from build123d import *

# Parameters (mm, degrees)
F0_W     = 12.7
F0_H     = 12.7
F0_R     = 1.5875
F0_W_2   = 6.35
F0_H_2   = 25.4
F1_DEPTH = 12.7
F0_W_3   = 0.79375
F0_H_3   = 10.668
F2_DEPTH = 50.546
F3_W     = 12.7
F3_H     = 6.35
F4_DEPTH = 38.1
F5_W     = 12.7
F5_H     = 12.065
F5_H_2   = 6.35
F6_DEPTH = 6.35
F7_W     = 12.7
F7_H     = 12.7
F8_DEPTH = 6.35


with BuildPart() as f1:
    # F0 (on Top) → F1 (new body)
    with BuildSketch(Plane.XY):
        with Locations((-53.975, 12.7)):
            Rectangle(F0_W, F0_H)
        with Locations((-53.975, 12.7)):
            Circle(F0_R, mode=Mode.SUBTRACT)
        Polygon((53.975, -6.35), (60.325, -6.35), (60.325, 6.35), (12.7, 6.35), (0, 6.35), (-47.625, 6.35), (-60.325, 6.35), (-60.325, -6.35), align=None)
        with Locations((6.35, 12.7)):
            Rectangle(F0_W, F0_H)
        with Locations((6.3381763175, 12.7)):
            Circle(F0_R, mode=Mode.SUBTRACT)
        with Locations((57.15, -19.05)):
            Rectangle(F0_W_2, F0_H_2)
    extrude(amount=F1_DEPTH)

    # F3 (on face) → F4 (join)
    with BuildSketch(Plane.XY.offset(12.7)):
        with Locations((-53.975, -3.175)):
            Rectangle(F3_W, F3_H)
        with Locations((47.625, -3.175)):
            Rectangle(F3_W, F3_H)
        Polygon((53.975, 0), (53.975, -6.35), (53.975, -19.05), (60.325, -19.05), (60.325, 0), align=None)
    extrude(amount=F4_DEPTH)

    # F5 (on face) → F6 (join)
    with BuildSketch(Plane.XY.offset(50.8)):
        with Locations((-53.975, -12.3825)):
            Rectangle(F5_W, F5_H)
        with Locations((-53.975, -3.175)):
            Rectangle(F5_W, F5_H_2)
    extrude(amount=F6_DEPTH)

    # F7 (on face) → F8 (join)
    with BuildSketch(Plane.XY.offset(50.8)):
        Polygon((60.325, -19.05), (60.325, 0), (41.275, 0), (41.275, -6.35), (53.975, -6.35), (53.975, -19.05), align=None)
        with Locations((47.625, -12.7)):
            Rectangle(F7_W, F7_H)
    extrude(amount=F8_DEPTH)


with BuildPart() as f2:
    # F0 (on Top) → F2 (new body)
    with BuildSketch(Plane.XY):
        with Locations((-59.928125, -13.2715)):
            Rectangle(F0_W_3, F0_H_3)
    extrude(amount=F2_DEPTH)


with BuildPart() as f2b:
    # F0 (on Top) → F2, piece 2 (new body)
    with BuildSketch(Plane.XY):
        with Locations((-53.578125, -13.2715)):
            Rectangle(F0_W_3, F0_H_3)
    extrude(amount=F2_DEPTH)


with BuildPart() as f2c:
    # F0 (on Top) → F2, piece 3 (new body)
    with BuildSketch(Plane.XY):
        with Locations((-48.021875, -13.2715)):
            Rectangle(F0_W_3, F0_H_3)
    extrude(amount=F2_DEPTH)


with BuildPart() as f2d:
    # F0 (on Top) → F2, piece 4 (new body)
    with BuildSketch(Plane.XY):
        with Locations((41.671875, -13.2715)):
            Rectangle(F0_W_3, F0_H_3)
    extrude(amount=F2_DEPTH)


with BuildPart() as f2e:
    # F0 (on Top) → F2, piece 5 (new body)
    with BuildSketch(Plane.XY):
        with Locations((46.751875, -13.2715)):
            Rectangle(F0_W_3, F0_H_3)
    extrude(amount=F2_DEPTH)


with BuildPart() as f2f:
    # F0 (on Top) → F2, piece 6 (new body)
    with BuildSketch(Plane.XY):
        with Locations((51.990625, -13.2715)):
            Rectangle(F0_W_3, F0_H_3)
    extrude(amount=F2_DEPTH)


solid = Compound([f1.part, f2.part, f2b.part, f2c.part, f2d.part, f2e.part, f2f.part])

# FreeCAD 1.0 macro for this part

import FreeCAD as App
import Part
import Sketcher
from FreeCAD import Vector
Q = App.Units.Quantity


def add_polygon(sketch, points):
    """Adds a closed chain of lines whose ends are joined by coincident constraints."""
    first, n = sketch.GeometryCount, len(points)
    for a, b in zip(points, points[1:] + points[:1]):
        sketch.addGeometry(Part.LineSegment(App.Vector(*a, 0), App.Vector(*b, 0)), False)
    for i in range(n):
        sketch.addConstraint(Sketcher.Constraint("Coincident", first + i, 2, first + (i + 1) % n, 1))

doc = App.newDocument("Part")
body = doc.addObject("PartDesign::Body", "Body")

# Sketch on XY plane
sketch1 = doc.addObject("Sketcher::SketchObject", "Sketch")
body.addObject(sketch1)
sketch1.AttachmentSupport = (doc.XY_Plane, [""])
sketch1.MapMode = "FlatFace"
add_polygon(sketch1, [(-60.3, 19.1), (-60.3, -6.3), (54, -6.3), (54, -31.8), (60.3, -31.8), (60.3, 6.3), (12.7, 6.3), (12.7, 19.1), (0, 19.1), (0, 6.3), (-47.6, 6.3), (-47.6, 19.1)])  # lines 0-11
sketch1.addGeometry(Part.Circle(Vector(-54, 12.7, 0), Vector(0, 0, 1), 1.6), False)  # 12
sketch1.addGeometry(Part.Circle(Vector(6.3, 12.7, 0), Vector(0, 0, 1), 1.6), False)  # 13
sketch1.addConstraint(Sketcher.Constraint("Vertical", 0))
sketch1.addConstraint(Sketcher.Constraint("Horizontal", 1))
sketch1.addConstraint(Sketcher.Constraint("Vertical", 2))
sketch1.addConstraint(Sketcher.Constraint("Horizontal", 3))
sketch1.addConstraint(Sketcher.Constraint("Vertical", 4))
sketch1.addConstraint(Sketcher.Constraint("Horizontal", 5))
sketch1.addConstraint(Sketcher.Constraint("Vertical", 6))
sketch1.addConstraint(Sketcher.Constraint("Horizontal", 7))
sketch1.addConstraint(Sketcher.Constraint("Vertical", 8))
sketch1.addConstraint(Sketcher.Constraint("Horizontal", 9))
sketch1.addConstraint(Sketcher.Constraint("Vertical", 10))
sketch1.addConstraint(Sketcher.Constraint("Horizontal", 11))
sketch1.addConstraint(Sketcher.Constraint("Equal", 12, 13))
sketch1.addConstraint(Sketcher.Constraint("Symmetric", 0, 2, 4, 2, -1, 1))
sketch1.addConstraint(Sketcher.Constraint("PointOnObject", 7, 2, -2))
sketch1.addConstraint(Sketcher.Constraint("Horizontal", 12, 3, 13, 3))
sketch1.addConstraint(Sketcher.Constraint("Horizontal", 5, 2, 8, 2))
sketch1.addConstraint(Sketcher.Constraint("Horizontal", 7, 2, 10, 2))
sketch1.addConstraint(Sketcher.Constraint("Equal", 5, 9))
sketch1.addConstraint(Sketcher.Constraint("Equal", 0, 2))
sketch1.addConstraint(Sketcher.Constraint("Equal", 11, 6))
sketch1.addConstraint(Sketcher.Constraint("DistanceY", 0, 2, 0, 1, Q("1 in")))
sketch1.addConstraint(Sketcher.Constraint("Diameter", 12, Q("0.125 in")))
sketch1.addConstraint(Sketcher.Constraint("DistanceX", 1, 1, 1, 2, Q("4.5 in")))
sketch1.addConstraint(Sketcher.Constraint("DistanceX", 7, 2, 7, 1, Q("0.5 in")))
sketch1.addConstraint(Sketcher.Constraint("DistanceX", 3, 1, 3, 2, Q("0.25 in")))
sketch1.addConstraint(Sketcher.Constraint("DistanceY", -1, 1, 12, 3, Q("0.5 in")))
sketch1.addConstraint(Sketcher.Constraint("DistanceX", 12, 3, 3, 2, Q("4.5 in")))
sketch1.addConstraint(Sketcher.Constraint("DistanceX", -1, 1, 13, 3, Q("6.338176 mm")))
pad1 = doc.addObject("PartDesign::Pad", "Pad")
body.addObject(pad1)
pad1.Profile = sketch1
pad1.Length = Q("0.5 in")

# Sketch on XY plane
sketch2 = doc.addObject("Sketcher::SketchObject", "Sketch001")
body.addObject(sketch2)
sketch2.AttachmentSupport = (doc.XY_Plane, [""])
sketch2.MapMode = "FlatFace"
sketch2.AttachmentOffset = App.Placement(Vector(0, 0, 0.5 * 25.4), App.Rotation())
add_polygon(sketch2, [(-60, 0), (-60, -6), (-48, -6), (-48, 0)])  # lines 0-3
add_polygon(sketch2, [(41, 0), (41, -6), (54, -6), (54, -19), (60, -19), (60, 0)])  # lines 4-9
sketch2.addConstraint(Sketcher.Constraint("Vertical", 0))
sketch2.addConstraint(Sketcher.Constraint("Horizontal", 1))
sketch2.addConstraint(Sketcher.Constraint("Vertical", 2))
sketch2.addConstraint(Sketcher.Constraint("Horizontal", 3))
sketch2.addConstraint(Sketcher.Constraint("Vertical", 4))
sketch2.addConstraint(Sketcher.Constraint("Horizontal", 5))
sketch2.addConstraint(Sketcher.Constraint("Vertical", 6))
sketch2.addConstraint(Sketcher.Constraint("Horizontal", 7))
sketch2.addConstraint(Sketcher.Constraint("Vertical", 8))
sketch2.addConstraint(Sketcher.Constraint("Horizontal", 9))
sketch2.addConstraint(Sketcher.Constraint("Symmetric", 3, 2, 8, 2, -1, 1))
sketch2.addConstraint(Sketcher.Constraint("PointOnObject", 2, 2, -1))
sketch2.addConstraint(Sketcher.Constraint("Horizontal", 1, 2, 4, 2))
sketch2.addConstraint(Sketcher.Constraint("Equal", 3, 5))
sketch2.addConstraint(Sketcher.Constraint("Equal", 7, 0))
sketch2.addConstraint(Sketcher.Constraint("Equal", 5, 6))
sketch2.addConstraint(Sketcher.Constraint("DistanceX", 1, 1, 1, 2, Q("0.5 in")))
sketch2.addConstraint(Sketcher.Constraint("DistanceX", 0, 2, 4, 2, Q("4 in")))
sketch2.addConstraint(Sketcher.Constraint("DistanceX", 7, 1, 7, 2, Q("0.25 in")))
pad2 = doc.addObject("PartDesign::Pad", "Pad001")
body.addObject(pad2)
pad2.Profile = sketch2
pad2.Length = Q("1.5 in")

# Sketch on XY plane
sketch3 = doc.addObject("Sketcher::SketchObject", "Sketch002")
body.addObject(sketch3)
sketch3.AttachmentSupport = (doc.XY_Plane, [""])
sketch3.MapMode = "FlatFace"
sketch3.AttachmentOffset = App.Placement(Vector(0, 0, 2 * 25.4), App.Rotation())
add_polygon(sketch3, [(-60, -18), (-48, -18), (-48, 0), (-60, 0)])  # lines 0-3
sketch3.addConstraint(Sketcher.Constraint("Horizontal", 0))
sketch3.addConstraint(Sketcher.Constraint("Vertical", 1))
sketch3.addConstraint(Sketcher.Constraint("Horizontal", 2))
sketch3.addConstraint(Sketcher.Constraint("Vertical", 3))
sketch3.addConstraint(Sketcher.Constraint("PointOnObject", 1, 2, -1))
sketch3.addConstraint(Sketcher.Constraint("DistanceX", 0, 1, 0, 2, Q("0.5 in")))
sketch3.addConstraint(Sketcher.Constraint("DistanceY", 1, 1, 1, 2, Q("0.725 in")))
sketch3.addConstraint(Sketcher.Constraint("DistanceX", 0, 2, -1, 1, Q("1.875 in")))
pad3 = doc.addObject("PartDesign::Pad", "Pad002")
body.addObject(pad3)
pad3.Profile = sketch3
pad3.Length = Q("0.25 in")

# Sketch on XY plane
sketch4 = doc.addObject("Sketcher::SketchObject", "Sketch003")
body.addObject(sketch4)
sketch4.AttachmentSupport = (doc.XY_Plane, [""])
sketch4.MapMode = "FlatFace"
sketch4.AttachmentOffset = App.Placement(Vector(0, 0, 2 * 25.4), App.Rotation())
add_polygon(sketch4, [(60, -19), (60, 0), (41, 0), (41, -19)])  # lines 0-3
sketch4.addConstraint(Sketcher.Constraint("Vertical", 0))
sketch4.addConstraint(Sketcher.Constraint("Horizontal", 1))
sketch4.addConstraint(Sketcher.Constraint("Vertical", 2))
sketch4.addConstraint(Sketcher.Constraint("Horizontal", 3))
sketch4.addConstraint(Sketcher.Constraint("PointOnObject", 0, 2, -1))
sketch4.addConstraint(Sketcher.Constraint("Equal", 3, 0))
sketch4.addConstraint(Sketcher.Constraint("DistanceX", 1, 2, 1, 1, Q("0.75 in")))
sketch4.addConstraint(Sketcher.Constraint("DistanceX", -1, 1, 0, 2, Q("2.375 in")))
pad4 = doc.addObject("PartDesign::Pad", "Pad003")
body.addObject(pad4)
pad4.Profile = sketch4
pad4.Length = Q("0.25 in")
body2 = doc.addObject("PartDesign::Body", "Body001")

# Sketch on XY plane
sketch5 = doc.addObject("Sketcher::SketchObject", "Sketch004")
body2.addObject(sketch5)
sketch5.AttachmentSupport = (doc.getObject("XY_Plane001"), [""])
sketch5.MapMode = "FlatFace"
add_polygon(sketch5, [(-60.3, -7.9), (-60.3, -18.6), (-59.5, -18.6), (-59.5, -7.9)])  # lines 0-3
sketch5.addConstraint(Sketcher.Constraint("Vertical", 0))
sketch5.addConstraint(Sketcher.Constraint("Horizontal", 1))
sketch5.addConstraint(Sketcher.Constraint("Vertical", 2))
sketch5.addConstraint(Sketcher.Constraint("Horizontal", 3))
sketch5.addConstraint(Sketcher.Constraint("DistanceY", 0, 2, 0, 1, Q("0.42 in")))
sketch5.addConstraint(Sketcher.Constraint("DistanceX", 1, 1, 1, 2, Q("0.03125 in")))
sketch5.addConstraint(Sketcher.Constraint("DistanceX", 0, 2, -1, 1, Q("2.375 in")))
sketch5.addConstraint(Sketcher.Constraint("DistanceY", 2, 2, -1, 1, Q("0.3125 in")))
pad5 = doc.addObject("PartDesign::Pad", "Pad004")
body2.addObject(pad5)
pad5.Profile = sketch5
pad5.Length = Q("1.99 in")
body3 = doc.addObject("PartDesign::Body", "Body002")

# Sketch on XY plane
sketch6 = doc.addObject("Sketcher::SketchObject", "Sketch005")
body3.addObject(sketch6)
sketch6.AttachmentSupport = (doc.getObject("XY_Plane002"), [""])
sketch6.MapMode = "FlatFace"
add_polygon(sketch6, [(-54, -7.9), (-54, -18.6), (-53.2, -18.6), (-53.2, -7.9)])  # lines 0-3
sketch6.addConstraint(Sketcher.Constraint("Vertical", 0))
sketch6.addConstraint(Sketcher.Constraint("Horizontal", 1))
sketch6.addConstraint(Sketcher.Constraint("Vertical", 2))
sketch6.addConstraint(Sketcher.Constraint("Horizontal", 3))
sketch6.addConstraint(Sketcher.Constraint("DistanceY", 0, 2, 0, 1, Q("0.42 in")))
sketch6.addConstraint(Sketcher.Constraint("DistanceX", 1, 1, 1, 2, Q("0.03125 in")))
sketch6.addConstraint(Sketcher.Constraint("DistanceX", 0, 2, -1, 1, Q("2.125 in")))
sketch6.addConstraint(Sketcher.Constraint("DistanceY", 2, 2, -1, 1, Q("0.3125 in")))
pad6 = doc.addObject("PartDesign::Pad", "Pad005")
body3.addObject(pad6)
pad6.Profile = sketch6
pad6.Length = Q("1.99 in")
body4 = doc.addObject("PartDesign::Body", "Body003")

# Sketch on XY plane
sketch7 = doc.addObject("Sketcher::SketchObject", "Sketch006")
body4.addObject(sketch7)
sketch7.AttachmentSupport = (doc.getObject("XY_Plane003"), [""])
sketch7.MapMode = "FlatFace"
add_polygon(sketch7, [(-48.4, -7.9), (-48.4, -18.6), (-47.6, -18.6), (-47.6, -7.9)])  # lines 0-3
sketch7.addConstraint(Sketcher.Constraint("Vertical", 0))
sketch7.addConstraint(Sketcher.Constraint("Horizontal", 1))
sketch7.addConstraint(Sketcher.Constraint("Vertical", 2))
sketch7.addConstraint(Sketcher.Constraint("Horizontal", 3))
sketch7.addConstraint(Sketcher.Constraint("DistanceY", 0, 2, 0, 1, Q("0.42 in")))
sketch7.addConstraint(Sketcher.Constraint("DistanceX", 1, 1, 1, 2, Q("0.03125 in")))
sketch7.addConstraint(Sketcher.Constraint("DistanceX", 0, 2, -1, 1, Q("1.90625 in")))
sketch7.addConstraint(Sketcher.Constraint("DistanceY", 2, 2, -1, 1, Q("0.3125 in")))
pad7 = doc.addObject("PartDesign::Pad", "Pad006")
body4.addObject(pad7)
pad7.Profile = sketch7
pad7.Length = Q("1.99 in")
body5 = doc.addObject("PartDesign::Body", "Body004")

# Sketch on XY plane
sketch8 = doc.addObject("Sketcher::SketchObject", "Sketch007")
body5.addObject(sketch8)
sketch8.AttachmentSupport = (doc.getObject("XY_Plane004"), [""])
sketch8.MapMode = "FlatFace"
add_polygon(sketch8, [(41.3, -7.9), (41.3, -18.6), (42.1, -18.6), (42.1, -7.9)])  # lines 0-3
sketch8.addConstraint(Sketcher.Constraint("Vertical", 0))
sketch8.addConstraint(Sketcher.Constraint("Horizontal", 1))
sketch8.addConstraint(Sketcher.Constraint("Vertical", 2))
sketch8.addConstraint(Sketcher.Constraint("Horizontal", 3))
sketch8.addConstraint(Sketcher.Constraint("DistanceY", 0, 2, 0, 1, Q("0.42 in")))
sketch8.addConstraint(Sketcher.Constraint("DistanceX", 1, 1, 1, 2, Q("0.03125 in")))
sketch8.addConstraint(Sketcher.Constraint("DistanceX", -1, 1, 0, 2, Q("1.625 in")))
sketch8.addConstraint(Sketcher.Constraint("DistanceY", 2, 2, -1, 1, Q("0.3125 in")))
pad8 = doc.addObject("PartDesign::Pad", "Pad007")
body5.addObject(pad8)
pad8.Profile = sketch8
pad8.Length = Q("1.99 in")
body6 = doc.addObject("PartDesign::Body", "Body005")

# Sketch on XY plane
sketch9 = doc.addObject("Sketcher::SketchObject", "Sketch008")
body6.addObject(sketch9)
sketch9.AttachmentSupport = (doc.getObject("XY_Plane005"), [""])
sketch9.MapMode = "FlatFace"
add_polygon(sketch9, [(46.4, -7.9), (46.4, -18.6), (47.1, -18.6), (47.1, -7.9)])  # lines 0-3
sketch9.addConstraint(Sketcher.Constraint("Vertical", 0))
sketch9.addConstraint(Sketcher.Constraint("Horizontal", 1))
sketch9.addConstraint(Sketcher.Constraint("Vertical", 2))
sketch9.addConstraint(Sketcher.Constraint("Horizontal", 3))
sketch9.addConstraint(Sketcher.Constraint("DistanceY", 0, 2, 0, 1, Q("0.42 in")))
sketch9.addConstraint(Sketcher.Constraint("DistanceX", 1, 1, 1, 2, Q("0.03125 in")))
sketch9.addConstraint(Sketcher.Constraint("DistanceX", -1, 1, 0, 2, Q("1.825 in")))
sketch9.addConstraint(Sketcher.Constraint("DistanceY", 2, 2, -1, 1, Q("0.3125 in")))
pad9 = doc.addObject("PartDesign::Pad", "Pad008")
body6.addObject(pad9)
pad9.Profile = sketch9
pad9.Length = Q("1.99 in")
body7 = doc.addObject("PartDesign::Body", "Body006")

# Sketch on XY plane
sketch10 = doc.addObject("Sketcher::SketchObject", "Sketch009")
body7.addObject(sketch10)
sketch10.AttachmentSupport = (doc.getObject("XY_Plane006"), [""])
sketch10.MapMode = "FlatFace"
add_polygon(sketch10, [(51.6, -7.9), (51.6, -18.6), (52.4, -18.6), (52.4, -7.9)])  # lines 0-3
sketch10.addConstraint(Sketcher.Constraint("Vertical", 0))
sketch10.addConstraint(Sketcher.Constraint("Horizontal", 1))
sketch10.addConstraint(Sketcher.Constraint("Vertical", 2))
sketch10.addConstraint(Sketcher.Constraint("Horizontal", 3))
sketch10.addConstraint(Sketcher.Constraint("DistanceY", 0, 2, 0, 1, Q("0.42 in")))
sketch10.addConstraint(Sketcher.Constraint("DistanceX", 1, 1, 1, 2, Q("0.03125 in")))
sketch10.addConstraint(Sketcher.Constraint("DistanceX", -1, 1, 0, 2, Q("2.03125 in")))
sketch10.addConstraint(Sketcher.Constraint("DistanceY", 2, 2, -1, 1, Q("0.3125 in")))
pad10 = doc.addObject("PartDesign::Pad", "Pad009")
body7.addObject(pad10)
pad10.Profile = sketch10
pad10.Length = Q("1.99 in")

doc.recompute()
